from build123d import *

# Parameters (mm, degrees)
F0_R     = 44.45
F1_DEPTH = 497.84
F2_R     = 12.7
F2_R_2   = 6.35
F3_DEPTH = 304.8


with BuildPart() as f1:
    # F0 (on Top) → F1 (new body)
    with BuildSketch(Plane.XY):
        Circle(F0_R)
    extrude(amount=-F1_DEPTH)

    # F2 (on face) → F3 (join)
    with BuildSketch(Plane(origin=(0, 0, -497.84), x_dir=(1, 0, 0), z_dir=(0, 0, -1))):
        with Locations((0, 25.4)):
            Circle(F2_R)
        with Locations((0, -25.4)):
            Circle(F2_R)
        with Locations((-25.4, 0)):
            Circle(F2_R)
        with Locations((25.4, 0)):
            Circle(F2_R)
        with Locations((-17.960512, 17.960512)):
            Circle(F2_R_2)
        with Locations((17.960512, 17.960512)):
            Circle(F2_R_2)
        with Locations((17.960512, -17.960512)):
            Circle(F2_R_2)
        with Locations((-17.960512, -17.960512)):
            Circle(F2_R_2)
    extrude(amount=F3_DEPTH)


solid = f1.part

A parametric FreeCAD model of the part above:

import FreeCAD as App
import Part
import Sketcher

V = App.Vector
Q = App.Units.Quantity

doc = App.newDocument("Part")
body = doc.addObject("PartDesign::Body", "Body")

sketch1 = body.newObject("Sketcher::SketchObject", "Sketch")
sketch1.AttachmentSupport = (doc.getObject("XY_Plane"), [""])
sketch1.MapMode = "FlatFace"
sketch1.addGeometry(Part.Circle(V(0, 0, 0), V(0, 0, 1), 44.45), False)
sketch1.addConstraint([
    Sketcher.Constraint("Coincident", 0, 3, -1, 1),
    Sketcher.Constraint("Diameter", 0, Q("3.5 in")),
])
pad1 = body.newObject("PartDesign::Pad", "Pad")
pad1.Profile = sketch1
pad1.Length = Q("19.6 in")
pad1.Reversed = True

sketch2 = body.newObject("Sketcher::SketchObject", "Sketch001")
sketch2.AttachmentSupport = (doc.getObject("XY_Plane"), [""])
sketch2.MapMode = "FlatFace"
sketch2.AttachmentOffset = App.Placement(V(0, 0, -19.6 * 25.4), App.Rotation())
sketch2.addGeometry([
    Part.Circle(V(0, -25.4, 0), V(0, 0, 1), 12.7),
    Part.Circle(V(0, 25.4, 0), V(0, 0, 1), 12.7),
    Part.Circle(V(-25.4, 0, 0), V(0, 0, 1), 12.7),
    Part.Circle(V(25.4, 0, 0), V(0, 0, 1), 12.7),
    Part.Circle(V(-17.960512, -17.960512, 0), V(0, 0, 1), 6.35),
    Part.Circle(V(17.960512, -17.960512, 0), V(0, 0, 1), 6.35),
    Part.Circle(V(17.960512, 17.960512, 0), V(0, 0, 1), 6.35),
    Part.Circle(V(-17.960512, 17.960512, 0), V(0, 0, 1), 6.35),
], False)
sketch2.addConstraint([
    Sketcher.Constraint("Equal", 0, 1),
    Sketcher.Constraint("Equal", 1, 2),
    Sketcher.Constraint("Equal", 2, 3),
    Sketcher.Constraint("Equal", 4, 5),
    Sketcher.Constraint("Equal", 5, 6),
    Sketcher.Constraint("Equal", 6, 7),
    Sketcher.Constraint("Symmetric", 0, 3, 1, 3, -1, 1),
    Sketcher.Constraint("Symmetric", 2, 3, 3, 3, -1, 1),
    Sketcher.Constraint("Symmetric", 4, 3, 6, 3, -1, 1),
    Sketcher.Constraint("Symmetric", 5, 3, 7, 3, -1, 1),
    Sketcher.Constraint("Symmetric", 4, 3, 5, 3, -2),
    Sketcher.Constraint("PointOnObject", 0, 3, -2),
    Sketcher.Constraint("PointOnObject", 2, 3, -1),
    Sketcher.Constraint("Diameter", 0, Q("1 in")),
    Sketcher.Constraint("Diameter", 4, Q("0.5 in")),
    Sketcher.Constraint("DistanceY", 0, 3, -1, 1, Q("1 in")),
    Sketcher.Constraint("DistanceX", 2, 3, -1, 1, Q("1 in")),
    Sketcher.Constraint("DistanceX", 4, 3, -1, 1, 17.960512),
    Sketcher.Constraint("DistanceY", 4, 3, -1, 1, 17.960512),
])
pad2 = body.newObject("PartDesign::Pad", "Pad001")
pad2.Profile = sketch2
pad2.Length = Q("12 in")
pad2.Reversed = True

doc.recompute()
